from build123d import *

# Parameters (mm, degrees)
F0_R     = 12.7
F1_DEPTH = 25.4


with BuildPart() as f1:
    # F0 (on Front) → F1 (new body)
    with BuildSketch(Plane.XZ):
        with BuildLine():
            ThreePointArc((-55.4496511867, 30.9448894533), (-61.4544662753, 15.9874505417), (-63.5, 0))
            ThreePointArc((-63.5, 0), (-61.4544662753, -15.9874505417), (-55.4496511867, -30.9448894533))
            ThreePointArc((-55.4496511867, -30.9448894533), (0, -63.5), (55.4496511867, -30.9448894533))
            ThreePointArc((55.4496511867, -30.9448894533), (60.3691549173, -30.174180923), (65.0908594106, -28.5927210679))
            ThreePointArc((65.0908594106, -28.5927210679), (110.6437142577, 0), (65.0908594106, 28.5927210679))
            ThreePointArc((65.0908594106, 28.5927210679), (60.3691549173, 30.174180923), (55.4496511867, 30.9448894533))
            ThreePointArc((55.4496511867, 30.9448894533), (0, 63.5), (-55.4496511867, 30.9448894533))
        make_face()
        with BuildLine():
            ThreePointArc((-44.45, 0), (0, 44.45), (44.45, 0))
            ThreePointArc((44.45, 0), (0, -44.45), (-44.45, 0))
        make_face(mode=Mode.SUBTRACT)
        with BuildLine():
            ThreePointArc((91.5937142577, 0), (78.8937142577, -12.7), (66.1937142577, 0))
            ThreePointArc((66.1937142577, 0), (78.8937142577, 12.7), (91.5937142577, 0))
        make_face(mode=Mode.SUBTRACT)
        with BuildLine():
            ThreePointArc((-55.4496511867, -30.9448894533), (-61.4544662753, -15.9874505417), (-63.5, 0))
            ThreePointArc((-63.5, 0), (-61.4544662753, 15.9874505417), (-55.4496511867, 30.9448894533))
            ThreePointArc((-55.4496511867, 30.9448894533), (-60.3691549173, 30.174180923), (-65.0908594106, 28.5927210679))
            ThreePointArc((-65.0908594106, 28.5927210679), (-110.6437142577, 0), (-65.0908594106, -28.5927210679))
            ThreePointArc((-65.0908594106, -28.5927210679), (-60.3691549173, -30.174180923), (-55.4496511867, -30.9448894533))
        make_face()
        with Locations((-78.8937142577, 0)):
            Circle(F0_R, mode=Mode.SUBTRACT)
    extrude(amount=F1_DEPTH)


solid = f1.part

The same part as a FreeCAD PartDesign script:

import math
import FreeCAD as App
import Part
import Sketcher
Q = App.Units.Quantity

doc = App.newDocument("Part")
body = doc.addObject("PartDesign::Body", "Body")

# Sketch on XZ plane
sketch1 = body.newObject("Sketcher::SketchObject", "Sketch")
sketch1.AttachmentSupport = (doc.getObject("XZ_Plane"), [""])
sketch1.MapMode = "FlatFace"
sketch1.addGeometry([
    Part.ArcOfCircle(Part.Circle(App.Vector(0, 0, 0), App.Vector(0, 0, 1), 64), math.radians(29), math.radians(151)),  # 0
    Part.ArcOfCircle(Part.Circle(App.Vector(-53, 1, 0), App.Vector(0, 0, 1), 30), math.radians(94.1), math.radians(113.32)),  # 1
    Part.ArcOfCircle(Part.Circle(App.Vector(-79, 0, 0), App.Vector(0, 0, 1), 32), math.radians(64), math.radians(296)),  # 2
    Part.ArcOfCircle(Part.Circle(App.Vector(-53, -1, 0), App.Vector(0, 0, 1), 30), math.radians(-113.32), math.radians(-94.1)),  # 3
    Part.ArcOfCircle(Part.Circle(App.Vector(0, 0, 0), App.Vector(0, 0, 1), 64), math.radians(-151), math.radians(-29)),  # 4
    Part.ArcOfCircle(Part.Circle(App.Vector(53, -1, 0), App.Vector(0, 0, 1), 30), math.radians(-85.9), math.radians(-66.68)),  # 5
    Part.ArcOfCircle(Part.Circle(App.Vector(79, 0, 0), App.Vector(0, 0, 1), 32), math.radians(-116), math.radians(116)),  # 6
    Part.ArcOfCircle(Part.Circle(App.Vector(53, 1, 0), App.Vector(0, 0, 1), 30), math.radians(66.68), math.radians(85.9)),  # 7
    Part.Circle(App.Vector(-79, 0, 0), App.Vector(0, 0, 1), 13),  # 8
    Part.Circle(App.Vector(0, 0, 0), App.Vector(0, 0, 1), 44),  # 9
    Part.Circle(App.Vector(79, 0, 0), App.Vector(0, 0, 1), 13),  # 10
], False)
sketch1.addConstraint([
    Sketcher.Constraint("Coincident", 0, 2, 1, 1),
    Sketcher.Constraint("Coincident", 1, 2, 2, 1),
    Sketcher.Constraint("Coincident", 2, 2, 3, 1),
    Sketcher.Constraint("Coincident", 3, 2, 4, 1),
    Sketcher.Constraint("Coincident", 4, 2, 5, 1),
    Sketcher.Constraint("Coincident", 5, 2, 6, 1),
    Sketcher.Constraint("Coincident", 6, 2, 7, 1),
    Sketcher.Constraint("Coincident", 7, 2, 0, 1),
    Sketcher.Constraint("Coincident", 0, 3, -1, 1),
    Sketcher.Constraint("Coincident", 4, 3, -1, 1),
    Sketcher.Constraint("Coincident", 9, 3, -1, 1),
    Sketcher.Constraint("Coincident", 8, 3, 2, 3),
    Sketcher.Constraint("Coincident", 10, 3, 6, 3),
    Sketcher.Constraint("Equal", 1, 3),
    Sketcher.Constraint("Equal", 0, 4),
    Sketcher.Constraint("Equal", 3, 5),
    Sketcher.Constraint("Equal", 2, 6),
    Sketcher.Constraint("Equal", 5, 7),
    Sketcher.Constraint("Equal", 8, 10),
    Sketcher.Constraint("Symmetric", 1, 3, 5, 3, -1, 1),
    Sketcher.Constraint("Symmetric", 2, 3, 6, 3, -1, 1),
    Sketcher.Constraint("Symmetric", 3, 3, 7, 3, -1, 1),
    Sketcher.Constraint("Symmetric", 3, 3, 5, 3, -2),
    Sketcher.Constraint("PointOnObject", 2, 3, -1),
    Sketcher.Constraint("Diameter", 8, Q("1 in")),
    Sketcher.Constraint("Diameter", 9, Q("3.5 in")),
    Sketcher.Constraint("Radius", 0, Q("2.5 in")),
    Sketcher.Constraint("Radius", 2, Q("1.25 in")),
    Sketcher.Constraint("Radius", 1, 29.711903),
    Sketcher.Constraint("DistanceX", 2, 3, 5, 3, 132.220602),
    Sketcher.Constraint("DistanceX", 0, 2, -1, 1, 55.449651),
    Sketcher.Constraint("DistanceY", -1, 1, 1, 2, 28.592721),
])
pad1 = body.newObject("PartDesign::Pad", "Pad")
pad1.Profile = sketch1
pad1.Length = Q("1 in")

doc.recompute()
